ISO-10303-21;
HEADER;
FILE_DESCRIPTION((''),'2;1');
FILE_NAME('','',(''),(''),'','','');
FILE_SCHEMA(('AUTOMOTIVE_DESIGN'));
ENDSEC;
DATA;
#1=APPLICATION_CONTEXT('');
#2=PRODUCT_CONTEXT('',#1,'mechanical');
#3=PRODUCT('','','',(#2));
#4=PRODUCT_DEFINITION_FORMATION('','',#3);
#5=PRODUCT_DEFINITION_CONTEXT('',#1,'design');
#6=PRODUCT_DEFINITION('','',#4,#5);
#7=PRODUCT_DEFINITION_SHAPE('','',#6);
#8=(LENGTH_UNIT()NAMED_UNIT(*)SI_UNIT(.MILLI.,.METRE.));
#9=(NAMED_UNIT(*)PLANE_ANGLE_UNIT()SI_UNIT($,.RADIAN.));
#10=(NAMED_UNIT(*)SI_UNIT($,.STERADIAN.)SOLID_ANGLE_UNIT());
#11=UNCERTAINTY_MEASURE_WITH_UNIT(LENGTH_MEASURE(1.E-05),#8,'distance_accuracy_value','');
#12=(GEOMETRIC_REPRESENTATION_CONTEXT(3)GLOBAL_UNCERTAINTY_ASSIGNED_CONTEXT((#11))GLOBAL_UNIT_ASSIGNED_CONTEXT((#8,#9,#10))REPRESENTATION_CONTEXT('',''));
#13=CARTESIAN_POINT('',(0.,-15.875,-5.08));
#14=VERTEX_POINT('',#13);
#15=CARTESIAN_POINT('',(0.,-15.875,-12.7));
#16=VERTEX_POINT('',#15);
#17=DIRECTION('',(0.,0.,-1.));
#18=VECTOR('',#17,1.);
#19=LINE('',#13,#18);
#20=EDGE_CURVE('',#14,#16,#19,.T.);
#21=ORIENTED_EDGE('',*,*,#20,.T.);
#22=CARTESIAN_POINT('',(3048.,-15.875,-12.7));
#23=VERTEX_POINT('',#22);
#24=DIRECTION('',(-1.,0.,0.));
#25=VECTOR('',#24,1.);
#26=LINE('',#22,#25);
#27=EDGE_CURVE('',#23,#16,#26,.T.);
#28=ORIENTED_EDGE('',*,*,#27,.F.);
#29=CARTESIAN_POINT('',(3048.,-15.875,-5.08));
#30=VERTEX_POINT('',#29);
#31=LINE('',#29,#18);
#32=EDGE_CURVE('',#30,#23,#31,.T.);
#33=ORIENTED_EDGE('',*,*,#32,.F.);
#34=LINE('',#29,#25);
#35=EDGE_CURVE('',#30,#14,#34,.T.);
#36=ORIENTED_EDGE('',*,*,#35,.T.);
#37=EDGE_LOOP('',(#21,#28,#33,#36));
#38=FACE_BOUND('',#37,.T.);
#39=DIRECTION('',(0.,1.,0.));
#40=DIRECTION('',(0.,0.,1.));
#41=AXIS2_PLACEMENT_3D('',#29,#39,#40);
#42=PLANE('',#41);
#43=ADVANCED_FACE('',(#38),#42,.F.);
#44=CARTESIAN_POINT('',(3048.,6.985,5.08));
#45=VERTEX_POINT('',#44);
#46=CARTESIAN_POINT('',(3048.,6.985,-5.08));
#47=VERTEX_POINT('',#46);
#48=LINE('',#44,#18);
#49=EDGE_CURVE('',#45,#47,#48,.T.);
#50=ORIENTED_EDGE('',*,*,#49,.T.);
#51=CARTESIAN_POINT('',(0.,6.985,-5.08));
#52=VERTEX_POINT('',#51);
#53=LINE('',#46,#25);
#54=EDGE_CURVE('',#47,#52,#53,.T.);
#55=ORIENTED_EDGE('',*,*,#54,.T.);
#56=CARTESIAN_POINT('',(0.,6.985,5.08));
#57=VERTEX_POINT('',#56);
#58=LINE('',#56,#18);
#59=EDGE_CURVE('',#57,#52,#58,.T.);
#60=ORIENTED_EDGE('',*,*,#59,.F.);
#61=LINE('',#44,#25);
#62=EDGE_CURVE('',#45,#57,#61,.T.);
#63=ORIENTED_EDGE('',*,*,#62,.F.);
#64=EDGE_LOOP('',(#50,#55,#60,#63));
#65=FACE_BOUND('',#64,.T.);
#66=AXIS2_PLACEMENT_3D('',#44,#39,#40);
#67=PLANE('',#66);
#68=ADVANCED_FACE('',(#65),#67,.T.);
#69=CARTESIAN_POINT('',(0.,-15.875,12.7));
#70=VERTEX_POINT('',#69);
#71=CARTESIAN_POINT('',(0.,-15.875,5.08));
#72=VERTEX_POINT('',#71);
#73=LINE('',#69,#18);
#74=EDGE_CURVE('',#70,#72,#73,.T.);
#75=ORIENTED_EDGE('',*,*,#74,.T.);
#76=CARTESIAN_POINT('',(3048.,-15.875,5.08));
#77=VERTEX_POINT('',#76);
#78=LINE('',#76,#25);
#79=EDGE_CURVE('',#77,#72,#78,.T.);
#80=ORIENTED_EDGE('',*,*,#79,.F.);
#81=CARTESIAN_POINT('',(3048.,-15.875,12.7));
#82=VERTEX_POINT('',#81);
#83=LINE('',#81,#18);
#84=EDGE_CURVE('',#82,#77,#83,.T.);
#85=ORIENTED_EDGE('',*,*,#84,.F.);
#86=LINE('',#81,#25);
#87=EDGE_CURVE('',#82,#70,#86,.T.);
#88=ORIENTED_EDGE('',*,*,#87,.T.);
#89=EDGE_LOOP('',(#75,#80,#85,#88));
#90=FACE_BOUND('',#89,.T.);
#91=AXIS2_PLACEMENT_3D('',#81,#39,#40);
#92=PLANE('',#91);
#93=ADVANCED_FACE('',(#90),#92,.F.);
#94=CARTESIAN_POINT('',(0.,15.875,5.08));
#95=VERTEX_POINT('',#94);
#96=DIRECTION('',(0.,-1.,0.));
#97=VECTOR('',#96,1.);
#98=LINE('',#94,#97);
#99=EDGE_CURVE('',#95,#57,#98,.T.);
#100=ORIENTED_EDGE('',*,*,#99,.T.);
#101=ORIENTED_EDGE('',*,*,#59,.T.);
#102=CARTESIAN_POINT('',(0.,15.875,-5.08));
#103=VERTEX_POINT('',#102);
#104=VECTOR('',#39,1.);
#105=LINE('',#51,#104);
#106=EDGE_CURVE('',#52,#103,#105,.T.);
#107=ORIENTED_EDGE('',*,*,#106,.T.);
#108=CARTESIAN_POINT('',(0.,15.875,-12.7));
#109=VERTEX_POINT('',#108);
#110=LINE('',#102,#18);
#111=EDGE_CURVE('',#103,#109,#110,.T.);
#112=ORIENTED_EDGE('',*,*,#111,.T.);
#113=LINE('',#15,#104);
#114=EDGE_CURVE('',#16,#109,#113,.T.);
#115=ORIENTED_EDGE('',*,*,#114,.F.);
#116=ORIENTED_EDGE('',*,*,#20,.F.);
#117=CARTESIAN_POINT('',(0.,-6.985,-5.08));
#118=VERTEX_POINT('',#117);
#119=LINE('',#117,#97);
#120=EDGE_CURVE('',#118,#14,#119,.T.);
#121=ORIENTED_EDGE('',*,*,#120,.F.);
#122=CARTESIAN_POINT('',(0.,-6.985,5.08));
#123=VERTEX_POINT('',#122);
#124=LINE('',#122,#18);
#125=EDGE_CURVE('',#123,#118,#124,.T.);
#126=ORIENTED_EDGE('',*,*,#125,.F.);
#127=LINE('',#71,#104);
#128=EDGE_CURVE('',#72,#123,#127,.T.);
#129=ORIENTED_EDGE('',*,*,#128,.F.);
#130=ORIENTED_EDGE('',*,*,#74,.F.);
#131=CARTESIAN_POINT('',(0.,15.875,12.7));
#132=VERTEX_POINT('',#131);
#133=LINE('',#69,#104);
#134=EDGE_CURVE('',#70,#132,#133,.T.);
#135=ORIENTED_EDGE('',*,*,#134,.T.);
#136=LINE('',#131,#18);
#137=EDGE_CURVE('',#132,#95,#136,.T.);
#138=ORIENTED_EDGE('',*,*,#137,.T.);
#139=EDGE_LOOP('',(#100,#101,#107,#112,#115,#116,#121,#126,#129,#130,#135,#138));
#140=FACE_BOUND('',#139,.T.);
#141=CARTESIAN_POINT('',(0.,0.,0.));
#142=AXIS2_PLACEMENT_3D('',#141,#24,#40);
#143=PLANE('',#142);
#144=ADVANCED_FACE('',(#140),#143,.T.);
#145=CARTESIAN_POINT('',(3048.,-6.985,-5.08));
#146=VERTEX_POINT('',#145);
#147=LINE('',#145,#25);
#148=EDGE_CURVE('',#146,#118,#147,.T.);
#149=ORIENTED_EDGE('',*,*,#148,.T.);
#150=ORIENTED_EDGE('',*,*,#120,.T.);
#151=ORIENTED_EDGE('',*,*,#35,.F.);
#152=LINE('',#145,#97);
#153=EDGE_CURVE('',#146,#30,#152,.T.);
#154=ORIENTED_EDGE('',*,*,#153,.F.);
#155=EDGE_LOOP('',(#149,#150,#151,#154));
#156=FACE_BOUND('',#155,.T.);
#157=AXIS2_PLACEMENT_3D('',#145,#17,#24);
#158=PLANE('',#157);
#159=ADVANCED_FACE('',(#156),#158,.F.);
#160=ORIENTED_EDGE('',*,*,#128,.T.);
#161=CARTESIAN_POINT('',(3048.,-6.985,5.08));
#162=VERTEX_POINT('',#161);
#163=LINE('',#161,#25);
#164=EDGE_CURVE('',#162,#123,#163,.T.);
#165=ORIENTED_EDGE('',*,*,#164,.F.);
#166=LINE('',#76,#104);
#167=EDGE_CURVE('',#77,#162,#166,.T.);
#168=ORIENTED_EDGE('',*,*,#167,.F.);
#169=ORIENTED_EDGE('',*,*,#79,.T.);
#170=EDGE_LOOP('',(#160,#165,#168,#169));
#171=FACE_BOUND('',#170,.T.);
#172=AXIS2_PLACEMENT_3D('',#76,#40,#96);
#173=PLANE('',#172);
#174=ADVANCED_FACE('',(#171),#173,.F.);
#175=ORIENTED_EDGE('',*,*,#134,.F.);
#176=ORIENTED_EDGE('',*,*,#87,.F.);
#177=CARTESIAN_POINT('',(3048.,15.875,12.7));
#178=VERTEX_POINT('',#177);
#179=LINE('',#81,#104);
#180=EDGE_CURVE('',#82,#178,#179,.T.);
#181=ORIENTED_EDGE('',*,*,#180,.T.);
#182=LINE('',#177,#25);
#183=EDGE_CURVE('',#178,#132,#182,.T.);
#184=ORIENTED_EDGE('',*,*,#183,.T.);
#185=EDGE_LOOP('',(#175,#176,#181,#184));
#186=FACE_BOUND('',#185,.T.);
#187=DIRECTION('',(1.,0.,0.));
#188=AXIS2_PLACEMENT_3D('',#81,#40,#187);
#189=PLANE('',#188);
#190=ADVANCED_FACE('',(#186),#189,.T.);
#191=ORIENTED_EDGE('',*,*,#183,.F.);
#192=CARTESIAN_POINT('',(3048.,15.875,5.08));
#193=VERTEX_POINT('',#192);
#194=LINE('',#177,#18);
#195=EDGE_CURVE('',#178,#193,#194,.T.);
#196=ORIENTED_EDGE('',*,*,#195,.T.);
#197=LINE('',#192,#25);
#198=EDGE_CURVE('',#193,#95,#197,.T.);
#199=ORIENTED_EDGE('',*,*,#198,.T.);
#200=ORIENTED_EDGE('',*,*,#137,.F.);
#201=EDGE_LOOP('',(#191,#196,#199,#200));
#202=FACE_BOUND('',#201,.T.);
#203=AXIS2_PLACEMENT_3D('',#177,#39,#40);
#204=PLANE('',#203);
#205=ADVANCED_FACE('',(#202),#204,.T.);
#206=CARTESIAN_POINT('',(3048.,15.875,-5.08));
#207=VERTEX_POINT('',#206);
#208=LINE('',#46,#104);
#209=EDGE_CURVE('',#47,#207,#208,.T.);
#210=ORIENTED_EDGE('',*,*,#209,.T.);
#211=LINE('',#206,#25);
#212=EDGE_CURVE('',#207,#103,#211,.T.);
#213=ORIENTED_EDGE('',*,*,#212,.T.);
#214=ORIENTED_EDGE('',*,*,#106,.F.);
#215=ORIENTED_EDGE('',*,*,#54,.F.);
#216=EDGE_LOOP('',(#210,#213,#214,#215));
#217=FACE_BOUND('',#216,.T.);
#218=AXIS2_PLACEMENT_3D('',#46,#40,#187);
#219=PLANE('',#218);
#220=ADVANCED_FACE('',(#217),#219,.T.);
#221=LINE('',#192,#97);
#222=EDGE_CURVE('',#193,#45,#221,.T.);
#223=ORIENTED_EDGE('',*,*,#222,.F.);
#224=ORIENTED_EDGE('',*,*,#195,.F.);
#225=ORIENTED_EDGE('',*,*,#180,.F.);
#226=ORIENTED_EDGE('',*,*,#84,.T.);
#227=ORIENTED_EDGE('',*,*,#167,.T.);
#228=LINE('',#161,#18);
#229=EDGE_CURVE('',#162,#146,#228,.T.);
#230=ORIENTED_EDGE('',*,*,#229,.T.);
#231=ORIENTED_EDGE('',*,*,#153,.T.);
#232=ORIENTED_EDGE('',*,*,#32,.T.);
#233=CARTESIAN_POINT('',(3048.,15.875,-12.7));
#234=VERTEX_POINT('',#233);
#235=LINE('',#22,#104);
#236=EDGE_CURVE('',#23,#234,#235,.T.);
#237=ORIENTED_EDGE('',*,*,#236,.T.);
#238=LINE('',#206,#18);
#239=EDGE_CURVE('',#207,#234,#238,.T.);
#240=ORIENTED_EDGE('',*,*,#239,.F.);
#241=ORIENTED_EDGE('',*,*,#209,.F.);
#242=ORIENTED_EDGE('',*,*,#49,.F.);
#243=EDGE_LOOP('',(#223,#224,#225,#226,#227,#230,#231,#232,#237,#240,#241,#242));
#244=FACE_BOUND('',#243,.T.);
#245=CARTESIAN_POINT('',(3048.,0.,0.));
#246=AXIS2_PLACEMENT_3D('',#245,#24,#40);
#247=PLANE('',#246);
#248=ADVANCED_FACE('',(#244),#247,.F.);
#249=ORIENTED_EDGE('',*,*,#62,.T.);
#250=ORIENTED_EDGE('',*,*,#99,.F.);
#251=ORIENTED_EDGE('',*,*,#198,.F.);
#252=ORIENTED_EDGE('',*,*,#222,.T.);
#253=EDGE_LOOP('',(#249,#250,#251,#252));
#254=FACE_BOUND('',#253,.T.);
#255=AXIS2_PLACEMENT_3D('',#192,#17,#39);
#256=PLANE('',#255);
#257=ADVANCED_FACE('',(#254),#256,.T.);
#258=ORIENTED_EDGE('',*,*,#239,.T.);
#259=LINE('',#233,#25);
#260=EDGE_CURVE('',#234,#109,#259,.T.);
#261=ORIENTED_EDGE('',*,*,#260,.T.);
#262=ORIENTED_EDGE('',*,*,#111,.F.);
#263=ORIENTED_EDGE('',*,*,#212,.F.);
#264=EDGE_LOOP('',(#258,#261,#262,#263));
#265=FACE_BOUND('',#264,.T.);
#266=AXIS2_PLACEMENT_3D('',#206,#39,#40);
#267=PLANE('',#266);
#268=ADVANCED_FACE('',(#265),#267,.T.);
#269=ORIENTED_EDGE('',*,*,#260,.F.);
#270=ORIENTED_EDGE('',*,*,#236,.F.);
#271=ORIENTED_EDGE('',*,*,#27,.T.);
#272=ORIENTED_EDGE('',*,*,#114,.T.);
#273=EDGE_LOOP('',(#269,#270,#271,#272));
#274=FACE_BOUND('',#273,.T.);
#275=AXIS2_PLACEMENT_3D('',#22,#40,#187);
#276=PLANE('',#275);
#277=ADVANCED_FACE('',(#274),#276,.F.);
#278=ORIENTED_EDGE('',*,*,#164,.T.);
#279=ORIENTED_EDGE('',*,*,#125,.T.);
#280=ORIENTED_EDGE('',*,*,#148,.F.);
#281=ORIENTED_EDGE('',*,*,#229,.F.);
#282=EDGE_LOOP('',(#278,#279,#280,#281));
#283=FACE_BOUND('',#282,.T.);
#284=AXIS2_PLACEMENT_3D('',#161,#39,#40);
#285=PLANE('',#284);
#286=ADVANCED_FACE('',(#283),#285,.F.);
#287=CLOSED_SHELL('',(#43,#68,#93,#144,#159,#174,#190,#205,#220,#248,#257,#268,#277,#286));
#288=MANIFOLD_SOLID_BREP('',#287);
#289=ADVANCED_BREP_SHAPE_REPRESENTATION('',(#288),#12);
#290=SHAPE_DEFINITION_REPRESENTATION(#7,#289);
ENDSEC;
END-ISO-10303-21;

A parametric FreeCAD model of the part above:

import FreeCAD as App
import Part
import Sketcher
from FreeCAD import Vector
Q = App.Units.Quantity


def add_polygon(sketch, points):
    """Adds a closed chain of lines whose ends are joined by coincident constraints."""
    first, n = sketch.GeometryCount, len(points)
    for a, b in zip(points, points[1:] + points[:1]):
        sketch.addGeometry(Part.LineSegment(App.Vector(*a, 0), App.Vector(*b, 0)), False)
    for i in range(n):
        sketch.addConstraint(Sketcher.Constraint("Coincident", first + i, 2, first + (i + 1) % n, 1))

doc = App.newDocument("Part")
body = doc.addObject("PartDesign::Body", "Body")

sketch1 = body.newObject("Sketcher::SketchObject", "Sketch")
sketch1.AttachmentSupport = (doc.getObject("YZ_Plane"), [""])
sketch1.MapMode = "FlatFace"
add_polygon(sketch1, [(-15.875, -5.08), (-15.875, -12.7), (15.875, -12.7), (15.875, -5.08), (6.985, -5.08), (6.985, 5.08), (15.875, 5.08), (15.875, 12.7), (-15.875, 12.7), (-15.875, 5.08), (-6.985, 5.08), (-6.985, -5.08)])
sketch1.addConstraint([
    Sketcher.Constraint("Vertical", 0),
    Sketcher.Constraint("Horizontal", 1),
    Sketcher.Constraint("Vertical", 2),
    Sketcher.Constraint("Horizontal", 3),
    Sketcher.Constraint("Vertical", 4),
    Sketcher.Constraint("Horizontal", 5),
    Sketcher.Constraint("Vertical", 6),
    Sketcher.Constraint("Horizontal", 7),
    Sketcher.Constraint("Vertical", 8),
    Sketcher.Constraint("Horizontal", 9),
    Sketcher.Constraint("Vertical", 10),
    Sketcher.Constraint("Horizontal", 11),
    Sketcher.Constraint("Symmetric", 0, 2, 6, 2, -1, 1),
    Sketcher.Constraint("Symmetric", 2, 2, 8, 2, -1, 1),
    Sketcher.Constraint("Symmetric", 4, 2, 10, 2, -1, 1),
    Sketcher.Constraint("Symmetric", 5, 2, 8, 2, -2),
    Sketcher.Constraint("DistanceY", 0, 2, 0, 1, Q("0.3 in")),
    Sketcher.Constraint("DistanceY", 4, 1, 4, 2, Q("0.4 in")),
    Sketcher.Constraint("DistanceX", 1, 1, 1, 2, Q("1.25 in")),
    Sketcher.Constraint("DistanceX", 3, 2, 3, 1, Q("0.35 in")),
])
pad1 = body.newObject("PartDesign::Pad", "Pad")
pad1.Profile = sketch1
pad1.Length = Q("120 in")

doc.recompute()
